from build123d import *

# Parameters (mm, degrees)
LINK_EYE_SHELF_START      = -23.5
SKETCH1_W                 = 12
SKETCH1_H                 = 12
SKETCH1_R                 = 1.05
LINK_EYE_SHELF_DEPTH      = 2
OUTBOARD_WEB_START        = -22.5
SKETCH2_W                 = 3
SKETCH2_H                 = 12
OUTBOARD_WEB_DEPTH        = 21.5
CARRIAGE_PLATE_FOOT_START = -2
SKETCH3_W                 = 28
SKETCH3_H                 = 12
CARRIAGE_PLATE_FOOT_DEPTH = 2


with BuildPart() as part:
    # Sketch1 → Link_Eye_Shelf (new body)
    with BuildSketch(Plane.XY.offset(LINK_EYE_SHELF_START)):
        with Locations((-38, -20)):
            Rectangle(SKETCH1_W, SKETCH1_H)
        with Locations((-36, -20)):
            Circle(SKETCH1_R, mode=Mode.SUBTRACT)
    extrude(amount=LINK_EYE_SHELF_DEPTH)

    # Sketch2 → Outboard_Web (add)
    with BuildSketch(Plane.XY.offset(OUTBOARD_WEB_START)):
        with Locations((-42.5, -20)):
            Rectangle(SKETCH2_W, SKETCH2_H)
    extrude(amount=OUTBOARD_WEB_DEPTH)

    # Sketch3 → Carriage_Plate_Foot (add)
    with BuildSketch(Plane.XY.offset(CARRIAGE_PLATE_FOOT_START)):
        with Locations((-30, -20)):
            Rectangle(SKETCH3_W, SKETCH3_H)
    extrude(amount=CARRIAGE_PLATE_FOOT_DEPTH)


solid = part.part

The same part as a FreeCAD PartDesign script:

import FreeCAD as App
import Part
import Sketcher
from FreeCAD import Vector


def add_polygon(sketch, points):
    """Adds a closed chain of lines whose ends are joined by coincident constraints."""
    first, n = sketch.GeometryCount, len(points)
    for a, b in zip(points, points[1:] + points[:1]):
        sketch.addGeometry(Part.LineSegment(App.Vector(*a, 0), App.Vector(*b, 0)), False)
    for i in range(n):
        sketch.addConstraint(Sketcher.Constraint("Coincident", first + i, 2, first + (i + 1) % n, 1))

doc = App.newDocument("Part")
body = doc.addObject("PartDesign::Body", "Body")

sketch1 = body.newObject("Sketcher::SketchObject", "Sketch")
sketch1.AttachmentSupport = (doc.getObject("XY_Plane"), [""])
sketch1.MapMode = "FlatFace"
sketch1.AttachmentOffset = App.Placement(Vector(0, 0, -23.5), App.Rotation())
add_polygon(sketch1, [(-44, -14), (-44, -26), (-32, -26), (-32, -14)])
sketch1.addGeometry(Part.Circle(Vector(-36, -20, 0), Vector(0, 0, 1), 1.1), False)
sketch1.addConstraint([
    Sketcher.Constraint("Vertical", 0),
    Sketcher.Constraint("Horizontal", 1),
    Sketcher.Constraint("Vertical", 2),
    Sketcher.Constraint("Horizontal", 3),
    Sketcher.Constraint("Equal", 3, 0),
    Sketcher.Constraint("Diameter", 4, 2.1),
    Sketcher.Constraint("DistanceX", 1, 1, 1, 2, 12.0),
    Sketcher.Constraint("DistanceX", 4, 3, -1, 1, 36.0),
    Sketcher.Constraint("DistanceY", 4, 3, -1, 1, 20.0),
    Sketcher.Constraint("DistanceX", 0, 2, -1, 1, 44.0),
    Sketcher.Constraint("DistanceY", 0, 2, -1, 1, 26.0),
])
pad1 = body.newObject("PartDesign::Pad", "Pad")
pad1.Profile = sketch1
pad1.Length = 2

sketch2 = body.newObject("Sketcher::SketchObject", "Sketch001")
sketch2.AttachmentSupport = (doc.getObject("XY_Plane"), [""])
sketch2.MapMode = "FlatFace"
sketch2.AttachmentOffset = App.Placement(Vector(0, 0, -22.5), App.Rotation())
add_polygon(sketch2, [(-44, -14), (-44, -26), (-41, -26), (-41, -14)])
sketch2.addConstraint([
    Sketcher.Constraint("Vertical", 0),
    Sketcher.Constraint("Horizontal", 1),
    Sketcher.Constraint("Vertical", 2),
    Sketcher.Constraint("Horizontal", 3),
    Sketcher.Constraint("DistanceX", 1, 1, 1, 2, 3.0),
    Sketcher.Constraint("DistanceY", 0, 2, 0, 1, 12.0),
    Sketcher.Constraint("DistanceX", 0, 2, -1, 1, 44.0),
    Sketcher.Constraint("DistanceY", 0, 2, -1, 1, 26.0),
])
pad2 = body.newObject("PartDesign::Pad", "Pad001")
pad2.Profile = sketch2
pad2.Length = 21.5

sketch3 = body.newObject("Sketcher::SketchObject", "Sketch002")
sketch3.AttachmentSupport = (doc.getObject("XY_Plane"), [""])
sketch3.MapMode = "FlatFace"
sketch3.AttachmentOffset = App.Placement(Vector(0, 0, -2), App.Rotation())
add_polygon(sketch3, [(-44, -14), (-44, -26), (-16, -26), (-16, -14)])
sketch3.addConstraint([
    Sketcher.Constraint("Vertical", 0),
    Sketcher.Constraint("Horizontal", 1),
    Sketcher.Constraint("Vertical", 2),
    Sketcher.Constraint("Horizontal", 3),
    Sketcher.Constraint("DistanceX", 1, 1, 1, 2, 28.0),
    Sketcher.Constraint("DistanceY", 0, 2, 0, 1, 12.0),
    Sketcher.Constraint("DistanceX", 0, 2, -1, 1, 44.0),
    Sketcher.Constraint("DistanceY", 0, 2, -1, 1, 26.0),
])
pad3 = body.newObject("PartDesign::Pad", "Pad002")
pad3.Profile = sketch3
pad3.Length = 2

doc.recompute()
